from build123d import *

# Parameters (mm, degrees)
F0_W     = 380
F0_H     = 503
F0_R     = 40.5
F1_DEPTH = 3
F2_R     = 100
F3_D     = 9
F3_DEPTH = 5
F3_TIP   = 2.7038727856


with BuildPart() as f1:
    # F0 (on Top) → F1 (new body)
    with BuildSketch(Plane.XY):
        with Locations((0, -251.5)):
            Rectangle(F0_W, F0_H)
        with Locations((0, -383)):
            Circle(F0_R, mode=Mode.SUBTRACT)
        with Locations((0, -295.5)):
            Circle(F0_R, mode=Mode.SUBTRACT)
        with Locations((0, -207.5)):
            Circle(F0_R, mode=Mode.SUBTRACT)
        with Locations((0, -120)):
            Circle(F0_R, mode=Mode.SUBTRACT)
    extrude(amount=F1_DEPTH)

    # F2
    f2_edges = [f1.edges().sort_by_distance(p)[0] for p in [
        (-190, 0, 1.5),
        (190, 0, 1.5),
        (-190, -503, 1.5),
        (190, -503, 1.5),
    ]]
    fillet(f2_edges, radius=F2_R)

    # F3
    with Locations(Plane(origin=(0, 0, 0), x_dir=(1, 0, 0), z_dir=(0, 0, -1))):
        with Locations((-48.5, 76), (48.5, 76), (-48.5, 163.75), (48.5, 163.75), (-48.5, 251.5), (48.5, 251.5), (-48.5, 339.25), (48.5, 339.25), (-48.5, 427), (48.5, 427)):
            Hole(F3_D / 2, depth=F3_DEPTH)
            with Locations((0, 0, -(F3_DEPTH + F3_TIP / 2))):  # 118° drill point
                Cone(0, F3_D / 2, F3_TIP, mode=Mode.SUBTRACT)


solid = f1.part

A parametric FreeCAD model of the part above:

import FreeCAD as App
import Part
import Sketcher
from FreeCAD import Vector
Q = App.Units.Quantity


def edges_at(feature, points):
    """Names of the edges that pass closest to the given points."""
    edges = feature.Shape.Edges
    near = lambda p: min(range(len(edges)), key=lambda i: edges[i].distToShape(Part.Vertex(*p))[0])
    return sorted({f"Edge{near(p) + 1}" for p in points})


def add_polygon(sketch, points):
    """Adds a closed chain of lines whose ends are joined by coincident constraints."""
    first, n = sketch.GeometryCount, len(points)
    for a, b in zip(points, points[1:] + points[:1]):
        sketch.addGeometry(Part.LineSegment(App.Vector(*a, 0), App.Vector(*b, 0)), False)
    for i in range(n):
        sketch.addConstraint(Sketcher.Constraint("Coincident", first + i, 2, first + (i + 1) % n, 1))

doc = App.newDocument("Part")
body = doc.addObject("PartDesign::Body", "Body")

sketch1 = body.newObject("Sketcher::SketchObject", "Sketch")
sketch1.AttachmentSupport = (doc.getObject("XY_Plane"), [""])
sketch1.MapMode = "FlatFace"
add_polygon(sketch1, [(-190, 0), (-190, -503), (190, -503), (190, 0)])
sketch1.addGeometry(Part.Circle(Vector(0, -383, 0), Vector(0, 0, 1), 40), False)
sketch1.addGeometry(Part.Circle(Vector(0, -296, 0), Vector(0, 0, 1), 40), False)
sketch1.addGeometry(Part.Circle(Vector(0, -208, 0), Vector(0, 0, 1), 40), False)
sketch1.addGeometry(Part.Circle(Vector(0, -120, 0), Vector(0, 0, 1), 40), False)
sketch1.addConstraint([
    Sketcher.Constraint("Vertical", 0),
    Sketcher.Constraint("Horizontal", 1),
    Sketcher.Constraint("Vertical", 2),
    Sketcher.Constraint("Horizontal", 3),
    Sketcher.Constraint("Equal", 4, 5),
    Sketcher.Constraint("Equal", 5, 6),
    Sketcher.Constraint("Equal", 6, 7),
    Sketcher.Constraint("Symmetric", 2, 2, 3, 2, -1, 1),
    Sketcher.Constraint("PointOnObject", 4, 3, -2),
    Sketcher.Constraint("PointOnObject", 5, 3, -2),
    Sketcher.Constraint("PointOnObject", 6, 3, -2),
    Sketcher.Constraint("PointOnObject", 7, 3, -2),
    Sketcher.Constraint("Diameter", 4, Q("81 mm")),
    Sketcher.Constraint("DistanceX", 1, 1, 1, 2, Q("380 mm")),
    Sketcher.Constraint("DistanceY", 0, 2, 0, 1, Q("503 mm")),
    Sketcher.Constraint("DistanceY", 4, 3, -1, 1, Q("383 mm")),
    Sketcher.Constraint("DistanceY", 7, 3, -1, 1, Q("120 mm")),
    Sketcher.Constraint("DistanceY", 5, 3, 6, 3, Q("88 mm")),
    Sketcher.Constraint("DistanceY", 5, 3, -1, 1, Q("295.5 mm")),
])
pad1 = body.newObject("PartDesign::Pad", "Pad")
pad1.Profile = sketch1
pad1.Length = 3
doc.recompute()

fillet = body.newObject("PartDesign::Fillet", "Fillet")
fillet.Base = (pad1, edges_at(pad1, [
    (-190, 0, 1.5),
    (190, 0, 1.5),
    (-190, -503, 1.5),
    (190, -503, 1.5),
]))
fillet.Radius = 100

sketch2 = body.newObject("Sketcher::SketchObject", "Sketch001")
sketch2.AttachmentSupport = (doc.getObject("XY_Plane"), [""])
sketch2.MapMode = "FlatFace"
sketch2.addGeometry([
    Part.Circle(Vector(-48.5, -76, 0), Vector(0, 0, 1), 4.5),
    Part.Circle(Vector(48.5, -76, 0), Vector(0, 0, 1), 4.5),
    Part.Circle(Vector(-48.5, -163.8, 0), Vector(0, 0, 1), 4.5),
    Part.Circle(Vector(48.5, -163.8, 0), Vector(0, 0, 1), 4.5),
    Part.Circle(Vector(-48.5, -251.5, 0), Vector(0, 0, 1), 4.5),
    Part.Circle(Vector(48.5, -251.5, 0), Vector(0, 0, 1), 4.5),
    Part.Circle(Vector(-48.5, -339.2, 0), Vector(0, 0, 1), 4.5),
    Part.Circle(Vector(48.5, -339.2, 0), Vector(0, 0, 1), 4.5),
    Part.Circle(Vector(-48.5, -427, 0), Vector(0, 0, 1), 4.5),
    Part.Circle(Vector(48.5, -427, 0), Vector(0, 0, 1), 4.5),
], False)
sketch2.addConstraint([
    Sketcher.Constraint("Equal", 0, 1),
    Sketcher.Constraint("Equal", 1, 2),
    Sketcher.Constraint("Equal", 2, 3),
    Sketcher.Constraint("Equal", 3, 4),
    Sketcher.Constraint("Equal", 4, 5),
    Sketcher.Constraint("Equal", 5, 6),
    Sketcher.Constraint("Equal", 6, 7),
    Sketcher.Constraint("Equal", 7, 8),
    Sketcher.Constraint("Equal", 8, 9),
    Sketcher.Constraint("Symmetric", 0, 3, 1, 3, -2),
    Sketcher.Constraint("Symmetric", 2, 3, 3, 3, -2),
    Sketcher.Constraint("Symmetric", 4, 3, 5, 3, -2),
    Sketcher.Constraint("Symmetric", 6, 3, 7, 3, -2),
    Sketcher.Constraint("Symmetric", 8, 3, 9, 3, -2),
    Sketcher.Constraint("Vertical", 0, 3, 2, 3),
    Sketcher.Constraint("Vertical", 2, 3, 4, 3),
    Sketcher.Constraint("Vertical", 4, 3, 6, 3),
    Sketcher.Constraint("Vertical", 6, 3, 8, 3),
    Sketcher.Constraint("Diameter", 0, Q("9 mm")),
    Sketcher.Constraint("DistanceY", 0, 3, -1, 1, Q("76 mm")),
    Sketcher.Constraint("DistanceY", 8, 3, -1, 1, Q("427 mm")),
    Sketcher.Constraint("DistanceX", 0, 3, 1, 3, Q("97 mm")),
    Sketcher.Constraint("DistanceY", 4, 3, -1, 1, Q("251.5 mm")),
    Sketcher.Constraint("DistanceY", 6, 3, 2, 3, Q("175.5 mm")),
    Sketcher.Constraint("DistanceY", 2, 3, -1, 1, Q("163.75 mm")),
])
doc.recompute()
hole = body.newObject("PartDesign::Hole", "Hole")
hole.Profile = sketch2
hole.ThreadType = "None"
hole.Diameter = 9
hole.DepthType = "Dimension"
hole.Depth = 5
hole.DrillPoint = "Angled"
hole.DrillPointAngle = 118
hole.Reversed = True

doc.recompute()
